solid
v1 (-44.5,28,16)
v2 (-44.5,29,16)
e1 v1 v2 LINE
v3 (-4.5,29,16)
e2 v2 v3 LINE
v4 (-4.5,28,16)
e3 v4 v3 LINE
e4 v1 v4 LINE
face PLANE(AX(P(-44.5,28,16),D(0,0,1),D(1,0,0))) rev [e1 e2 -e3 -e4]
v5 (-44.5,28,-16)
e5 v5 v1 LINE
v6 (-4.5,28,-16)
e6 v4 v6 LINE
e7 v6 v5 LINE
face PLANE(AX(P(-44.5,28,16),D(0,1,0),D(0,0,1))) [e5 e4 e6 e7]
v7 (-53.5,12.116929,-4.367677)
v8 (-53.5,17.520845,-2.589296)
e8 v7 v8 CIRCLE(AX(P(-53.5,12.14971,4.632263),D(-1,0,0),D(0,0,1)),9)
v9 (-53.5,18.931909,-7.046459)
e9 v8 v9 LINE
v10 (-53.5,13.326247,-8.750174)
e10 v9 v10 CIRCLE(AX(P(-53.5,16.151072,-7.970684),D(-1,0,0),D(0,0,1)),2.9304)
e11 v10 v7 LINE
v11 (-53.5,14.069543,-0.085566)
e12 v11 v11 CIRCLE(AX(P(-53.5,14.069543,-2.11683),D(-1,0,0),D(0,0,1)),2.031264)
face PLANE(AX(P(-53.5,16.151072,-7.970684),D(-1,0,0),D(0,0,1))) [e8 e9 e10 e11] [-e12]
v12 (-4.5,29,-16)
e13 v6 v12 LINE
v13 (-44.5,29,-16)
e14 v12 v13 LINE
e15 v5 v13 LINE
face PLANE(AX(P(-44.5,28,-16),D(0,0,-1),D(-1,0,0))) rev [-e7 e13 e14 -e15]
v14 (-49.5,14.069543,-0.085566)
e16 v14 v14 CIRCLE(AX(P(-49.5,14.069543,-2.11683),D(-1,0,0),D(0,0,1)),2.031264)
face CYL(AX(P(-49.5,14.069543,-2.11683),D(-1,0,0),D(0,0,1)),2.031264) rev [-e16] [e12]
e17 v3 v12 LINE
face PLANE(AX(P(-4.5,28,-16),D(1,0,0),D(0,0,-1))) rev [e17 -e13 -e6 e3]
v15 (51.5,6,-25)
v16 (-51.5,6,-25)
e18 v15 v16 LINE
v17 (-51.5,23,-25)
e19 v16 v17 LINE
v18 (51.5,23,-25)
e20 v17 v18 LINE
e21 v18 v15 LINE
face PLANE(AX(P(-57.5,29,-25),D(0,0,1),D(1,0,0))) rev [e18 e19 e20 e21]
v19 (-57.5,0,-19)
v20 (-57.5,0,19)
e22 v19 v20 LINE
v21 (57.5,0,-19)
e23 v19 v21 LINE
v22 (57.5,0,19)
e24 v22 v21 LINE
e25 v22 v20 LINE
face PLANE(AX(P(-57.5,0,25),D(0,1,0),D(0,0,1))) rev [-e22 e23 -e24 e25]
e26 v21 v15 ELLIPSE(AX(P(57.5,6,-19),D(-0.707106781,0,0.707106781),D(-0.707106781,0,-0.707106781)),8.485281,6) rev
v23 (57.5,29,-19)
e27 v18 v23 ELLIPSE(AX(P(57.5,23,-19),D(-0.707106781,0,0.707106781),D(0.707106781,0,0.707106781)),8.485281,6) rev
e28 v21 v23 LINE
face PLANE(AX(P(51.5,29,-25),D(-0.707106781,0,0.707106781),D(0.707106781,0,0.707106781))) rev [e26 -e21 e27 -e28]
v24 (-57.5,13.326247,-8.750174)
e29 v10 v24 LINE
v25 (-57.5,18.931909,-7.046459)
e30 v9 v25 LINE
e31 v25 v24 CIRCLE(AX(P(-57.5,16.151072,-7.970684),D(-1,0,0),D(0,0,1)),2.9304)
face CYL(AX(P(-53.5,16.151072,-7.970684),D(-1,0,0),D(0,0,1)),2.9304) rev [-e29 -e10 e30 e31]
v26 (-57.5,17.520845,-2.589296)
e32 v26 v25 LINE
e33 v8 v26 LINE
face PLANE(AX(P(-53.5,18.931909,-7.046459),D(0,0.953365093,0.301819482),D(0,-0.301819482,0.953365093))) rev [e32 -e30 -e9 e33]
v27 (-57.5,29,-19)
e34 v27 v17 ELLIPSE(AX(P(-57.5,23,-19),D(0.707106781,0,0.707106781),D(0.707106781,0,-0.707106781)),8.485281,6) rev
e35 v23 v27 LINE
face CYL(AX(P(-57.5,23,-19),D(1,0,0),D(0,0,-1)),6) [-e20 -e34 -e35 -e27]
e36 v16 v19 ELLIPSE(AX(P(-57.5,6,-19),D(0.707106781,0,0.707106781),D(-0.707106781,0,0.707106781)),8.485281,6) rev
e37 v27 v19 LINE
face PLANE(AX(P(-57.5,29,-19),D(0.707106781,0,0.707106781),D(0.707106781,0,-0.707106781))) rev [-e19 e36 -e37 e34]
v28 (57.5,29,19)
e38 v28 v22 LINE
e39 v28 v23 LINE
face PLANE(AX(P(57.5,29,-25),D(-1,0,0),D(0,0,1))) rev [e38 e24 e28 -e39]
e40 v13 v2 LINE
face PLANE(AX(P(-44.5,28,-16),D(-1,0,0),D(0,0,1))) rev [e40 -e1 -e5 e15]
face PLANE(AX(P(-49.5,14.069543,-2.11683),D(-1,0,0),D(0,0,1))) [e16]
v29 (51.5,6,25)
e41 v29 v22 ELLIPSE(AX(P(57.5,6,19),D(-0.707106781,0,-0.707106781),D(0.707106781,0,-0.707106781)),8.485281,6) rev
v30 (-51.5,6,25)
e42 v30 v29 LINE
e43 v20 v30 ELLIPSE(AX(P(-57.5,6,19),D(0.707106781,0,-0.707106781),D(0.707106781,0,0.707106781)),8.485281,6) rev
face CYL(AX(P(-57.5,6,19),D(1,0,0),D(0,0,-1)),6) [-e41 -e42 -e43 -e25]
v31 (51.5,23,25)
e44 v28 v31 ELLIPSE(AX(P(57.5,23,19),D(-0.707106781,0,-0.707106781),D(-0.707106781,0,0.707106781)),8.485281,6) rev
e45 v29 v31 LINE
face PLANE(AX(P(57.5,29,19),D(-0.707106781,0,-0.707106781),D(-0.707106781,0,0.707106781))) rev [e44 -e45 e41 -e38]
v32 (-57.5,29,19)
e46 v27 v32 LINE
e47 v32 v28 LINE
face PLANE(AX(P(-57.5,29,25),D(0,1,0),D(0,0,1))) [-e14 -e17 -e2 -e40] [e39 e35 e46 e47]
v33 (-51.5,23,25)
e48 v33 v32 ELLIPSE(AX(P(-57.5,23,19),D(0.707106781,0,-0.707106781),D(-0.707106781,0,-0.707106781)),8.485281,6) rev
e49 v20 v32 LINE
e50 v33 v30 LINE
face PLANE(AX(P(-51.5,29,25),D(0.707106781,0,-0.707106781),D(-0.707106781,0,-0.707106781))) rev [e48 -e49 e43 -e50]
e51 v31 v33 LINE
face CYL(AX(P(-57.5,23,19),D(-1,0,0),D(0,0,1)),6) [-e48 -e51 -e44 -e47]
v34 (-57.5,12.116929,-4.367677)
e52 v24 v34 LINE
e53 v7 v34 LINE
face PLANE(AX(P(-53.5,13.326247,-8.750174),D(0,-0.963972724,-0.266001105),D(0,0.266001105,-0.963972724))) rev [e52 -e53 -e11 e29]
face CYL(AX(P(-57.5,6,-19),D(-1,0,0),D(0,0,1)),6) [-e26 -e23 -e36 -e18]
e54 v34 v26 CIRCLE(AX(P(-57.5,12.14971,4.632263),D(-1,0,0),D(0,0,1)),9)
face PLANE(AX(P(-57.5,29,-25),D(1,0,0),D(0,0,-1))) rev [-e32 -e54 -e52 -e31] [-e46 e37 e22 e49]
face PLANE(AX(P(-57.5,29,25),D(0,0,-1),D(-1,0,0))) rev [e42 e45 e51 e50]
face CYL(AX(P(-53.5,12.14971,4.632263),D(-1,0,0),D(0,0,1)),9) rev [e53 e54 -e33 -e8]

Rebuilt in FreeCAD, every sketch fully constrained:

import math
import FreeCAD as App
import Part
import Sketcher

V = App.Vector
Q = App.Units.Quantity


def edges_at(feature, points):
    """Names of the edges that pass closest to the given points."""
    edges = feature.Shape.Edges
    near = lambda p: min(range(len(edges)), key=lambda i: edges[i].distToShape(Part.Vertex(*p))[0])
    return sorted({f"Edge{near(p) + 1}" for p in points})

doc = App.newDocument("Part")
body = doc.addObject("PartDesign::Body", "Body")

# Sketch on XZ plane
sketch1 = body.newObject("Sketcher::SketchObject", "Sketch")
sketch1.AttachmentSupport = (doc.getObject("XZ_Plane"), [""])
sketch1.MapMode = "FlatFace"
sketch1.addGeometry([
    Part.LineSegment(V(-58, -25, 0), V(-58, 25, 0)),
    Part.LineSegment(V(-58, 25, 0), V(58, 25, 0)),
    Part.LineSegment(V(58, 25, 0), V(58, -25, 0)),
    Part.LineSegment(V(58, -25, 0), V(-58, -25, 0)),
], False)
sketch1.addConstraint([
    Sketcher.Constraint("Coincident", 0, 2, 1, 1),
    Sketcher.Constraint("Coincident", 1, 2, 2, 1),
    Sketcher.Constraint("Coincident", 2, 2, 3, 1),
    Sketcher.Constraint("Coincident", 3, 2, 0, 1),
    Sketcher.Constraint("Vertical", 0),
    Sketcher.Constraint("Horizontal", 1),
    Sketcher.Constraint("Vertical", 2),
    Sketcher.Constraint("Horizontal", 3),
    Sketcher.Constraint("Symmetric", 0, 2, 2, 2, -1, 1),
    Sketcher.Constraint("DistanceX", 1, 1, 1, 2, Q("115 mm")),
    Sketcher.Constraint("DistanceY", 0, 1, 0, 2, Q("50 mm")),
])
pad1 = body.newObject("PartDesign::Pad", "Pad")
pad1.Profile = sketch1
pad1.Length = 29
pad1.Reversed = True
doc.recompute()

chamfer = body.newObject("PartDesign::Chamfer", "Chamfer")
chamfer.Base = (pad1, edges_at(pad1, [
    (-57.5, 14.5, -25),
    (57.5, 14.5, -25),
    (57.5, 14.5, 25),
    (-57.5, 14.5, 25),
]))
chamfer.Size = 6
doc.recompute()

fillet = body.newObject("PartDesign::Fillet", "Fillet")
fillet.Base = (chamfer, edges_at(chamfer, [
    (0, 0, 25),
    (0, 0, -25),
    (0, 29, -25),
    (0, 29, 25),
]))
fillet.Radius = 6

# Sketch on XZ plane
sketch2 = body.newObject("Sketcher::SketchObject", "Sketch001")
sketch2.AttachmentSupport = (doc.getObject("XZ_Plane"), [""])
sketch2.MapMode = "FlatFace"
sketch2.AttachmentOffset = App.Placement(V(0, 0, -29), App.Rotation())
sketch2.addGeometry([
    Part.LineSegment(V(-44, -16, 0), V(-44, 16, 0)),
    Part.LineSegment(V(-44, 16, 0), V(-4, 16, 0)),
    Part.LineSegment(V(-4, 16, 0), V(-4, -16, 0)),
    Part.LineSegment(V(-4, -16, 0), V(-44, -16, 0)),
], False)
sketch2.addConstraint([
    Sketcher.Constraint("Coincident", 0, 2, 1, 1),
    Sketcher.Constraint("Coincident", 1, 2, 2, 1),
    Sketcher.Constraint("Coincident", 2, 2, 3, 1),
    Sketcher.Constraint("Coincident", 3, 2, 0, 1),
    Sketcher.Constraint("Vertical", 0),
    Sketcher.Constraint("Horizontal", 1),
    Sketcher.Constraint("Vertical", 2),
    Sketcher.Constraint("Horizontal", 3),
    Sketcher.Constraint("DistanceX", 1, 1, 1, 2, Q("40 mm")),
    Sketcher.Constraint("DistanceY", 0, 1, 0, 2, Q("32 mm")),
    Sketcher.Constraint("DistanceY", -1, 1, 0, 2, Q("16 mm")),
    Sketcher.Constraint("DistanceX", 0, 2, -1, 1, Q("44.5 mm")),
])
pocket1 = body.newObject("PartDesign::Pocket", "Pocket")
pocket1.Profile = sketch2
pocket1.Length = 1
pocket1.Reversed = True

# Sketch on YZ plane
sketch3 = body.newObject("Sketcher::SketchObject", "Sketch002")
sketch3.AttachmentSupport = (doc.getObject("YZ_Plane"), [""])
sketch3.MapMode = "FlatFace"
sketch3.AttachmentOffset = App.Placement(V(0, 0, -57.5), App.Rotation())
sketch3.addGeometry([
    Part.LineSegment(V(13.3, -8.8, 0), V(12.1, -4.4, 0)),
    Part.ArcOfCircle(Part.Circle(V(12.1, 4.6, 0), V(0, 0, 1), 9), math.radians(-53), math.radians(270)),
    Part.LineSegment(V(17.5, -2.6, 0), V(18.9, -7, 0)),
    Part.ArcOfCircle(Part.Circle(V(16.2, -8, 0), V(0, 0, 1), 2.9), math.radians(-165), math.radians(18)),
], False)
sketch3.addConstraint([
    Sketcher.Constraint("Coincident", 0, 2, 1, 2),
    Sketcher.Constraint("Coincident", 1, 1, 2, 1),
    Sketcher.Constraint("Coincident", 2, 2, 3, 2),
    Sketcher.Constraint("Tangent", 3, 1, 0, 1),
    Sketcher.Constraint("Radius", 1, Q("9 mm")),
    Sketcher.Constraint("Radius", 3, Q("2.9304 mm")),
    Sketcher.Constraint("DistanceX", 1, 3, 2, 2, Q("6.782198 mm")),
    Sketcher.Constraint("DistanceX", 3, 1, 1, 1, Q("4.194598 mm")),
    Sketcher.Constraint("Distance", 2, Q("4.675191 mm")),
    Sketcher.Constraint("DistanceX", -1, 1, 1, 3, Q("12.14971 mm")),
    Sketcher.Constraint("DistanceX", -1, 1, 0, 2, Q("12.116929 mm")),
    Sketcher.Constraint("DistanceY", 2, 2, -1, 1, Q("7.046459 mm")),
    Sketcher.Constraint("DistanceX", 1, 3, 3, 3, Q("4.001362 mm")),
])
pocket2 = body.newObject("PartDesign::Pocket", "Pocket001")
pocket2.Profile = sketch3
pocket2.Length = 4
pocket2.Reversed = True

# Sketch on YZ plane
sketch4 = body.newObject("Sketcher::SketchObject", "Sketch003")
sketch4.AttachmentSupport = (doc.getObject("YZ_Plane"), [""])
sketch4.MapMode = "FlatFace"
sketch4.AttachmentOffset = App.Placement(V(0, 0, -53.5), App.Rotation())
sketch4.addGeometry(Part.Circle(V(14.1, -2.1, 0), V(0, 0, 1), 2), False)
sketch4.addConstraint([
    Sketcher.Constraint("Diameter", 0, Q("4.062529 mm")),
    Sketcher.Constraint("DistanceY", 0, 3, -1, 1, Q("2.11683 mm")),
    Sketcher.Constraint("DistanceX", -1, 1, 0, 3, Q("14.069543 mm")),
])
pocket3 = body.newObject("PartDesign::Pocket", "Pocket002")
pocket3.Profile = sketch4
pocket3.Length = 4
pocket3.Reversed = True

doc.recompute()
